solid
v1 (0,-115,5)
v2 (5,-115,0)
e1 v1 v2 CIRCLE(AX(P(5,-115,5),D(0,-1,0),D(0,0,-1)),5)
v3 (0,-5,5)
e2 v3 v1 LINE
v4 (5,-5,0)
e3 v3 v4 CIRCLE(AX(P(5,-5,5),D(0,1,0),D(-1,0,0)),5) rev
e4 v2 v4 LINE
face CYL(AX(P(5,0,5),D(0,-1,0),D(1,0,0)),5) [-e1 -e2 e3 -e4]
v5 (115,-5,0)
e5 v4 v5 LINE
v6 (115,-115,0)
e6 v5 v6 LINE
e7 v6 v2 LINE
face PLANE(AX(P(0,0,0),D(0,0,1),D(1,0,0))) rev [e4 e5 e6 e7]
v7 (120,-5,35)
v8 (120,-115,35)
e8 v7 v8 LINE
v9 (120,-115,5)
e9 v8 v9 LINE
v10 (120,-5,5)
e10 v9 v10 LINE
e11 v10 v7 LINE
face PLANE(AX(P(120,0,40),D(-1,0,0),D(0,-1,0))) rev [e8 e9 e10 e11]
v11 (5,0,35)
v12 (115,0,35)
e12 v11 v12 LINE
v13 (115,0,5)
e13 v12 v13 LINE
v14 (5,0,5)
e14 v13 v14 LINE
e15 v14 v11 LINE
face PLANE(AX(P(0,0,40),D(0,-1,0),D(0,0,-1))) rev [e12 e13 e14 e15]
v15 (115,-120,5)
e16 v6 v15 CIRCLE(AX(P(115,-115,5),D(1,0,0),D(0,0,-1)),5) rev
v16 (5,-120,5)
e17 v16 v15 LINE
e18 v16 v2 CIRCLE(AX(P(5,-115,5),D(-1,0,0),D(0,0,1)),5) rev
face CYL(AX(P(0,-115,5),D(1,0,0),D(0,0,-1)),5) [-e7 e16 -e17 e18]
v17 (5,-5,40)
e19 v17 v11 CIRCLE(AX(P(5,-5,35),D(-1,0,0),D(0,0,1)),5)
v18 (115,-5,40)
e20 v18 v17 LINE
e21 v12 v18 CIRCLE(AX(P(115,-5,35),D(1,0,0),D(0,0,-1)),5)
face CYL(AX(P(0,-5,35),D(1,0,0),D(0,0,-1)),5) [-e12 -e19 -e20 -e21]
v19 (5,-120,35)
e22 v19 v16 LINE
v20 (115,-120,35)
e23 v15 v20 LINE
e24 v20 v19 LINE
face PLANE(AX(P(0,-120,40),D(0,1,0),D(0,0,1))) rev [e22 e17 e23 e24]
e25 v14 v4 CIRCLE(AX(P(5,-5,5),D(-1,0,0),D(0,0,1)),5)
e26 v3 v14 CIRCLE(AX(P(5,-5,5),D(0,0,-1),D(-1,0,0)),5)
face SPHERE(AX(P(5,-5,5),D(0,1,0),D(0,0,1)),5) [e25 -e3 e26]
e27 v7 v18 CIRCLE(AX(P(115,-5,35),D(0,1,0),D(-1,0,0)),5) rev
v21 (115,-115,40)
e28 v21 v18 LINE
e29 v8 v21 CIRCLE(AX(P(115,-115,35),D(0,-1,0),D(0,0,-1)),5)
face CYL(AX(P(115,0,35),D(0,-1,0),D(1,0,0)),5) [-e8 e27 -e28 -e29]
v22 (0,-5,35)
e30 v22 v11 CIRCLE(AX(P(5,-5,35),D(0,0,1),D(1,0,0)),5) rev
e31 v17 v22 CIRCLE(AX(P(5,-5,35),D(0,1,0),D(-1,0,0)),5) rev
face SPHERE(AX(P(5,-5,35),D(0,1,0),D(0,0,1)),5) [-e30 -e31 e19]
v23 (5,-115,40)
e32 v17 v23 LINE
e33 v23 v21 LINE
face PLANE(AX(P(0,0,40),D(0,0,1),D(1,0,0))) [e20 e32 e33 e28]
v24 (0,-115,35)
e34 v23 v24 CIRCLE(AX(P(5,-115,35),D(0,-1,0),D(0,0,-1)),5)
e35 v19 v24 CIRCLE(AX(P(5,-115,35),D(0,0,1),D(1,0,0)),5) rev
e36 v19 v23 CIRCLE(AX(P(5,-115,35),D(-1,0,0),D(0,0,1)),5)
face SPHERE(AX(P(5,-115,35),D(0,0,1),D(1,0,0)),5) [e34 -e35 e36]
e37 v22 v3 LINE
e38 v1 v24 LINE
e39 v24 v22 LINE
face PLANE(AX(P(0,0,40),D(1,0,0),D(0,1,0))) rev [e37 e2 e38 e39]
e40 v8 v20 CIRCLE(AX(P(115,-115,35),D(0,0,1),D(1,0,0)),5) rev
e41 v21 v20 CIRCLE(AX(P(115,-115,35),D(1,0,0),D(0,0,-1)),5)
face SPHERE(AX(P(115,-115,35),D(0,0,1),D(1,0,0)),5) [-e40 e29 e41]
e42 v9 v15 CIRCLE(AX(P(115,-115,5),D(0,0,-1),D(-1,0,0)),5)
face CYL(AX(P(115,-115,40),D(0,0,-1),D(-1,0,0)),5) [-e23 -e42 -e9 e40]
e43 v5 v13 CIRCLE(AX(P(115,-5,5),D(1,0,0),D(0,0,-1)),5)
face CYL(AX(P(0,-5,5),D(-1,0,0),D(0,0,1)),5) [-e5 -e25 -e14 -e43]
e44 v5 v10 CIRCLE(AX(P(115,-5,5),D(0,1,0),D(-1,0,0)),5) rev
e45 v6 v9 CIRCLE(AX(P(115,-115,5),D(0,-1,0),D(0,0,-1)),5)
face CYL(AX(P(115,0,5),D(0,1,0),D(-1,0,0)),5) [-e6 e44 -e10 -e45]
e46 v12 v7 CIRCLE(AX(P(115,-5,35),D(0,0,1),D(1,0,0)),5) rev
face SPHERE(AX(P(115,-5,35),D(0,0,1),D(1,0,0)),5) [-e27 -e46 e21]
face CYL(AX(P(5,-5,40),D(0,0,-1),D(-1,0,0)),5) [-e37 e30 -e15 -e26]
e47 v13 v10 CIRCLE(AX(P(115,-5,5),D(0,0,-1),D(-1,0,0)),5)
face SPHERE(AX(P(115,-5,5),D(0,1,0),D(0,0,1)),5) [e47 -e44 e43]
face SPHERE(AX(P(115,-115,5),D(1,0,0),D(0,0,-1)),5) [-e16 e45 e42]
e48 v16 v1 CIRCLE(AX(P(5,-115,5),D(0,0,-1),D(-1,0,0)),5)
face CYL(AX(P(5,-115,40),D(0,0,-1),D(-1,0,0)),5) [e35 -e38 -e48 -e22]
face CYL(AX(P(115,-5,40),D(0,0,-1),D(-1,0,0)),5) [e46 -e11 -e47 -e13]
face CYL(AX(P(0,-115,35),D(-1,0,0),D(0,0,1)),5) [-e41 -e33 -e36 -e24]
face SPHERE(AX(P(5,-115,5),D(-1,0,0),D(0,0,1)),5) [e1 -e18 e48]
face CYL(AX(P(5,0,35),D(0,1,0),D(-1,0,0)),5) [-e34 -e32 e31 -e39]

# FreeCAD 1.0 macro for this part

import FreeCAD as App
import Part
import Sketcher
from FreeCAD import Vector

doc = App.newDocument("Part")
params = doc.addObject("Spreadsheet::Sheet", "Params")
for row, (alias, value) in enumerate([
    ("sketch1_width", "120 mm"),
    ("pad1_length", "40 mm"),
    ("fillet_radius", "5 mm"),
], start=1):
    params.set(f"A{row}", alias)
    params.set(f"B{row}", "=" + value)
    params.setAlias(f"B{row}", alias)

body = doc.addObject("PartDesign::Body", "Body")

sketch1 = doc.addObject("Sketcher::SketchObject", "Sketch")
body.addObject(sketch1)
sketch1.AttachmentSupport = (doc.XY_Plane, [""])
sketch1.MapMode = "FlatFace"
sketch1.addGeometry(Part.LineSegment(Vector(0, 0, 0), Vector(0, -120, 0)), False)
sketch1.addGeometry(Part.LineSegment(Vector(0, -120, 0), Vector(120, -120, 0)), False)
sketch1.addGeometry(Part.LineSegment(Vector(120, -120, 0), Vector(120, 0, 0)), False)
sketch1.addGeometry(Part.LineSegment(Vector(120, 0, 0), Vector(0, 0, 0)), False)
sketch1.addConstraint(Sketcher.Constraint("Coincident", 0, 2, 1, 1))
sketch1.addConstraint(Sketcher.Constraint("Coincident", 1, 2, 2, 1))
sketch1.addConstraint(Sketcher.Constraint("Coincident", 2, 2, 3, 1))
sketch1.addConstraint(Sketcher.Constraint("Coincident", 3, 2, 0, 1))
sketch1.addConstraint(Sketcher.Constraint("Vertical", 0))
sketch1.addConstraint(Sketcher.Constraint("Horizontal", 1))
sketch1.addConstraint(Sketcher.Constraint("Vertical", 2))
sketch1.addConstraint(Sketcher.Constraint("Horizontal", 3))
sketch1.addConstraint(Sketcher.Constraint("Coincident", 3, 2, -1, 1))
sketch1.addConstraint(Sketcher.Constraint("Equal", 3, 0))
sketch1.addConstraint(Sketcher.Constraint("DistanceX", 1, 1, 1, 2, 120.0))
sketch1.setExpression("Constraints[10]", "Params.sketch1_width")
pad1 = doc.addObject("PartDesign::Pad", "Pad")
body.addObject(pad1)
pad1.Profile = sketch1
pad1.setExpression("Length", "Params.pad1_length")
doc.recompute()

fillet = doc.addObject("PartDesign::Fillet", "Fillet")
body.addObject(fillet)
fillet.Base = (pad1, ["Edge1"])
fillet.UseAllEdges = True
fillet.setExpression("Radius", "Params.fillet_radius")

doc.recompute()
